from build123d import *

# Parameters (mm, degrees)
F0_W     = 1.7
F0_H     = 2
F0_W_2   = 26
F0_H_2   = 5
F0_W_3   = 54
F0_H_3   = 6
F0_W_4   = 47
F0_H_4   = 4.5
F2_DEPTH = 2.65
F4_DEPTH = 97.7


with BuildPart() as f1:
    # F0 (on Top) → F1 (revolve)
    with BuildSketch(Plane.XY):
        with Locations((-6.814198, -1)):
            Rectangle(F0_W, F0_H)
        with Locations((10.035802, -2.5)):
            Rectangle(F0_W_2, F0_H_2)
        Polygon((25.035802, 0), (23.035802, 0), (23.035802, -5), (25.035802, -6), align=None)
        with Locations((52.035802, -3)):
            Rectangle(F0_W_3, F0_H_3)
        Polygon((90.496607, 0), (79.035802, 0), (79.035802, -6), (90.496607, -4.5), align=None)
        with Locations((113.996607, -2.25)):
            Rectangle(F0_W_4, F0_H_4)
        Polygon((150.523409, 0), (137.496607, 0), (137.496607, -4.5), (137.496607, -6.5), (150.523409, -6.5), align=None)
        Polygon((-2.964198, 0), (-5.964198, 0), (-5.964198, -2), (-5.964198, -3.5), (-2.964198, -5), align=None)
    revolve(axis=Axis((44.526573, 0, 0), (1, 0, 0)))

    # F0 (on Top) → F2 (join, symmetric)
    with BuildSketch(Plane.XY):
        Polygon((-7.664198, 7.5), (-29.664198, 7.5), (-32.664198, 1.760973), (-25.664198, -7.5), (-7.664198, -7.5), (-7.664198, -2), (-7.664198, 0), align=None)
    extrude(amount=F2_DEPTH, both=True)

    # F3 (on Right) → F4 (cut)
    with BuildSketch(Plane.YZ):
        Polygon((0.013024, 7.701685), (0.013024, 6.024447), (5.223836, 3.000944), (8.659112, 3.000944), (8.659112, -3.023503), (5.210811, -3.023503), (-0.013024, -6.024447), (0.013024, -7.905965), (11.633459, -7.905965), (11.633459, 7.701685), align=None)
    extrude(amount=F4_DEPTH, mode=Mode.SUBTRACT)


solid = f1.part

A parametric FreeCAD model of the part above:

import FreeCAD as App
import Part
import Sketcher
from FreeCAD import Vector
Q = App.Units.Quantity

doc = App.newDocument("Part")
body = doc.addObject("PartDesign::Body", "Body")

# Sketch on XY plane
sketch1 = body.newObject("Sketcher::SketchObject", "Sketch")
sketch1.AttachmentSupport = (doc.getObject("XY_Plane"), [""])
sketch1.MapMode = "FlatFace"
sketch1.addGeometry([
    Part.LineSegment(Vector(-7.7, 0, 0), Vector(-7.7, -2, 0)),  # 0
    Part.LineSegment(Vector(-7.7, -2, 0), Vector(-6, -2, 0)),  # 1
    Part.LineSegment(Vector(-6, -2, 0), Vector(-6, -3.5, 0)),  # 2
    Part.LineSegment(Vector(-6, -3.5, 0), Vector(-3, -5, 0)),  # 3
    Part.LineSegment(Vector(-3, -5, 0), Vector(23, -5, 0)),  # 4
    Part.LineSegment(Vector(23, -5, 0), Vector(25, -6, 0)),  # 5
    Part.LineSegment(Vector(25, -6, 0), Vector(79, -6, 0)),  # 6
    Part.LineSegment(Vector(79, -6, 0), Vector(90.5, -4.5, 0)),  # 7
    Part.LineSegment(Vector(90.5, -4.5, 0), Vector(137.5, -4.5, 0)),  # 8
    Part.LineSegment(Vector(137.5, -4.5, 0), Vector(137.5, -6.5, 0)),  # 9
    Part.LineSegment(Vector(137.5, -6.5, 0), Vector(150.5, -6.5, 0)),  # 10
    Part.LineSegment(Vector(150.5, -6.5, 0), Vector(150.5, 0, 0)),  # 11
    Part.LineSegment(Vector(150.5, 0, 0), Vector(-7.7, 0, 0)),  # 12
], False)
sketch1.addConstraint([
    Sketcher.Constraint("Coincident", 0, 2, 1, 1),
    Sketcher.Constraint("Coincident", 1, 2, 2, 1),
    Sketcher.Constraint("Coincident", 2, 2, 3, 1),
    Sketcher.Constraint("Coincident", 3, 2, 4, 1),
    Sketcher.Constraint("Coincident", 4, 2, 5, 1),
    Sketcher.Constraint("Coincident", 5, 2, 6, 1),
    Sketcher.Constraint("Coincident", 6, 2, 7, 1),
    Sketcher.Constraint("Coincident", 7, 2, 8, 1),
    Sketcher.Constraint("Coincident", 8, 2, 9, 1),
    Sketcher.Constraint("Coincident", 9, 2, 10, 1),
    Sketcher.Constraint("Coincident", 10, 2, 11, 1),
    Sketcher.Constraint("Coincident", 11, 2, 12, 1),
    Sketcher.Constraint("Coincident", 12, 2, 0, 1),
    Sketcher.Constraint("Vertical", 0),
    Sketcher.Constraint("Horizontal", 1),
    Sketcher.Constraint("Vertical", 2),
    Sketcher.Constraint("Horizontal", 4),
    Sketcher.Constraint("Horizontal", 6),
    Sketcher.Constraint("Horizontal", 8),
    Sketcher.Constraint("Vertical", 9),
    Sketcher.Constraint("Horizontal", 10),
    Sketcher.Constraint("Vertical", 11),
    Sketcher.Constraint("Horizontal", 12),
    Sketcher.Constraint("PointOnObject", 11, 2, -1),
    Sketcher.Constraint("Parallel", 3, 5),
    Sketcher.Constraint("Equal", 0, 9),
    Sketcher.Constraint("DistanceX", 4, 1, 4, 2, Q("26 mm")),
    Sketcher.Constraint("DistanceX", 6, 1, 6, 2, Q("54 mm")),
    Sketcher.Constraint("DistanceX", 8, 1, 8, 2, Q("47 mm")),
    Sketcher.Constraint("DistanceY", 0, 2, 0, 1, Q("2 mm")),
    Sketcher.Constraint("DistanceX", 1, 1, 1, 2, Q("1.7 mm")),
    Sketcher.Constraint("DistanceY", 2, 2, 2, 1, Q("1.5 mm")),
    Sketcher.Constraint("DistanceY", 11, 1, 11, 2, Q("6.5 mm")),
    Sketcher.Constraint("DistanceY", 3, 2, -1, 1, Q("5 mm")),
    Sketcher.Constraint("DistanceY", 5, 2, -1, 1, Q("6 mm")),
    Sketcher.Constraint("DistanceX", 2, 2, 3, 2, Q("3 mm")),
    Sketcher.Constraint("DistanceX", 10, 1, 10, 2, Q("13.026802 mm")),
    Sketcher.Constraint("DistanceX", 3, 2, -1, 1, Q("2.964198 mm")),
    Sketcher.Constraint("Distance", 7, Q("11.558549 mm")),
])
revolution = body.newObject("PartDesign::Revolution", "Revolution")
revolution.Profile = sketch1
revolution.ReferenceAxis = (sketch1, ["H_Axis"])
revolution.Angle = 360

# Sketch on XY plane
sketch2 = body.newObject("Sketcher::SketchObject", "Sketch001")
sketch2.AttachmentSupport = (doc.getObject("XY_Plane"), [""])
sketch2.MapMode = "FlatFace"
sketch2.addGeometry([
    Part.LineSegment(Vector(-8, 8, 0), Vector(-30, 8, 0)),  # 0
    Part.LineSegment(Vector(-30, 8, 0), Vector(-33, 2, 0)),  # 1
    Part.LineSegment(Vector(-33, 2, 0), Vector(-26, -8, 0)),  # 2
    Part.LineSegment(Vector(-26, -8, 0), Vector(-8, -8, 0)),  # 3
    Part.LineSegment(Vector(-8, -8, 0), Vector(-8, 8, 0)),  # 4
], False)
sketch2.addConstraint([
    Sketcher.Constraint("Coincident", 0, 2, 1, 1),
    Sketcher.Constraint("Coincident", 1, 2, 2, 1),
    Sketcher.Constraint("Coincident", 2, 2, 3, 1),
    Sketcher.Constraint("Coincident", 3, 2, 4, 1),
    Sketcher.Constraint("Coincident", 4, 2, 0, 1),
    Sketcher.Constraint("Horizontal", 0),
    Sketcher.Constraint("Horizontal", 3),
    Sketcher.Constraint("Vertical", 4),
    Sketcher.Constraint("DistanceX", 0, 2, 0, 1, Q("22 mm")),
    Sketcher.Constraint("DistanceX", 3, 1, 3, 2, Q("18 mm")),
    Sketcher.Constraint("DistanceY", 4, 1, 4, 2, Q("15 mm")),
    Sketcher.Constraint("DistanceX", 1, 2, 0, 2, Q("3 mm")),
    Sketcher.Constraint("DistanceY", -1, 1, 0, 2, Q("7.5 mm")),
    Sketcher.Constraint("Distance", 2, Q("11.60886 mm")),
    Sketcher.Constraint("DistanceX", 0, 2, -1, 1, Q("29.664198 mm")),
])
pad1 = body.newObject("PartDesign::Pad", "Pad")
pad1.Profile = sketch2
pad1.Length = 5.3
pad1.Midplane = True

# Sketch on YZ plane
sketch3 = body.newObject("Sketcher::SketchObject", "Sketch002")
sketch3.AttachmentSupport = (doc.getObject("YZ_Plane"), [""])
sketch3.MapMode = "FlatFace"
sketch3.addGeometry([
    Part.LineSegment(Vector(0.013024, 7.701685, 0), Vector(0.013024, 6.024447, 0)),  # 0
    Part.LineSegment(Vector(0.013024, 6.024447, 0), Vector(5.223836, 3.000944, 0)),  # 1
    Part.LineSegment(Vector(5.223836, 3.000944, 0), Vector(8.659112, 3.000944, 0)),  # 2
    Part.LineSegment(Vector(8.659112, 3.000944, 0), Vector(8.659112, -3.023503, 0)),  # 3
    Part.LineSegment(Vector(8.659112, -3.023503, 0), Vector(5.210811, -3.023503, 0)),  # 4
    Part.LineSegment(Vector(5.210811, -3.023503, 0), Vector(-0.013024, -6.024447, 0)),  # 5
    Part.LineSegment(Vector(-0.013024, -6.024447, 0), Vector(0.013024, -7.905965, 0)),  # 6
    Part.LineSegment(Vector(0.013024, -7.905965, 0), Vector(11.633459, -7.905965, 0)),  # 7
    Part.LineSegment(Vector(11.633459, -7.905965, 0), Vector(11.633459, 7.701685, 0)),  # 8
    Part.LineSegment(Vector(11.633459, 7.701685, 0), Vector(0.013024, 7.701685, 0)),  # 9
], False)
sketch3.addConstraint([
    Sketcher.Constraint("Coincident", 0, 2, 1, 1),
    Sketcher.Constraint("Coincident", 1, 2, 2, 1),
    Sketcher.Constraint("Coincident", 2, 2, 3, 1),
    Sketcher.Constraint("Coincident", 3, 2, 4, 1),
    Sketcher.Constraint("Coincident", 4, 2, 5, 1),
    Sketcher.Constraint("Coincident", 5, 2, 6, 1),
    Sketcher.Constraint("Coincident", 6, 2, 7, 1),
    Sketcher.Constraint("Coincident", 7, 2, 8, 1),
    Sketcher.Constraint("Coincident", 8, 2, 9, 1),
    Sketcher.Constraint("Coincident", 9, 2, 0, 1),
    Sketcher.Constraint("Vertical", 0),
    Sketcher.Constraint("Horizontal", 2),
    Sketcher.Constraint("Vertical", 3),
    Sketcher.Constraint("Horizontal", 4),
    Sketcher.Constraint("Horizontal", 7),
    Sketcher.Constraint("Vertical", 8),
    Sketcher.Constraint("Horizontal", 9),
    Sketcher.Constraint("DistanceX", 4, 2, 4, 1, Q("3.448301 mm")),
    Sketcher.Constraint("Distance", 6, Q("1.881698 mm")),
    Sketcher.Constraint("DistanceY", 8, 1, 8, 2, Q("15.60765 mm")),
    Sketcher.Constraint("Distance", 1, Q("6.024461 mm")),
    Sketcher.Constraint("Distance", 5, Q("6.02446 mm")),
    Sketcher.Constraint("DistanceX", 2, 1, 2, 2, Q("3.435276 mm")),
    Sketcher.Constraint("DistanceX", 7, 1, 7, 2, Q("11.620435 mm")),
    Sketcher.Constraint("DistanceX", 9, 2, 9, 1, Q("11.620435 mm")),
    Sketcher.Constraint("DistanceY", 0, 2, 0, 1, Q("1.677238 mm")),
    Sketcher.Constraint("DistanceY", 3, 2, 3, 1, Q("6.024447 mm")),
    Sketcher.Constraint("DistanceX", -1, 1, 4, 2, Q("5.210811 mm")),
    Sketcher.Constraint("DistanceX", -1, 1, 7, 2, Q("11.633459 mm")),
    Sketcher.Constraint("DistanceY", -1, 1, 0, 2, Q("6.024447 mm")),
])
pocket1 = body.newObject("PartDesign::Pocket", "Pocket")
pocket1.Profile = sketch3
pocket1.Length = 97.7
pocket1.Reversed = True

doc.recompute()
